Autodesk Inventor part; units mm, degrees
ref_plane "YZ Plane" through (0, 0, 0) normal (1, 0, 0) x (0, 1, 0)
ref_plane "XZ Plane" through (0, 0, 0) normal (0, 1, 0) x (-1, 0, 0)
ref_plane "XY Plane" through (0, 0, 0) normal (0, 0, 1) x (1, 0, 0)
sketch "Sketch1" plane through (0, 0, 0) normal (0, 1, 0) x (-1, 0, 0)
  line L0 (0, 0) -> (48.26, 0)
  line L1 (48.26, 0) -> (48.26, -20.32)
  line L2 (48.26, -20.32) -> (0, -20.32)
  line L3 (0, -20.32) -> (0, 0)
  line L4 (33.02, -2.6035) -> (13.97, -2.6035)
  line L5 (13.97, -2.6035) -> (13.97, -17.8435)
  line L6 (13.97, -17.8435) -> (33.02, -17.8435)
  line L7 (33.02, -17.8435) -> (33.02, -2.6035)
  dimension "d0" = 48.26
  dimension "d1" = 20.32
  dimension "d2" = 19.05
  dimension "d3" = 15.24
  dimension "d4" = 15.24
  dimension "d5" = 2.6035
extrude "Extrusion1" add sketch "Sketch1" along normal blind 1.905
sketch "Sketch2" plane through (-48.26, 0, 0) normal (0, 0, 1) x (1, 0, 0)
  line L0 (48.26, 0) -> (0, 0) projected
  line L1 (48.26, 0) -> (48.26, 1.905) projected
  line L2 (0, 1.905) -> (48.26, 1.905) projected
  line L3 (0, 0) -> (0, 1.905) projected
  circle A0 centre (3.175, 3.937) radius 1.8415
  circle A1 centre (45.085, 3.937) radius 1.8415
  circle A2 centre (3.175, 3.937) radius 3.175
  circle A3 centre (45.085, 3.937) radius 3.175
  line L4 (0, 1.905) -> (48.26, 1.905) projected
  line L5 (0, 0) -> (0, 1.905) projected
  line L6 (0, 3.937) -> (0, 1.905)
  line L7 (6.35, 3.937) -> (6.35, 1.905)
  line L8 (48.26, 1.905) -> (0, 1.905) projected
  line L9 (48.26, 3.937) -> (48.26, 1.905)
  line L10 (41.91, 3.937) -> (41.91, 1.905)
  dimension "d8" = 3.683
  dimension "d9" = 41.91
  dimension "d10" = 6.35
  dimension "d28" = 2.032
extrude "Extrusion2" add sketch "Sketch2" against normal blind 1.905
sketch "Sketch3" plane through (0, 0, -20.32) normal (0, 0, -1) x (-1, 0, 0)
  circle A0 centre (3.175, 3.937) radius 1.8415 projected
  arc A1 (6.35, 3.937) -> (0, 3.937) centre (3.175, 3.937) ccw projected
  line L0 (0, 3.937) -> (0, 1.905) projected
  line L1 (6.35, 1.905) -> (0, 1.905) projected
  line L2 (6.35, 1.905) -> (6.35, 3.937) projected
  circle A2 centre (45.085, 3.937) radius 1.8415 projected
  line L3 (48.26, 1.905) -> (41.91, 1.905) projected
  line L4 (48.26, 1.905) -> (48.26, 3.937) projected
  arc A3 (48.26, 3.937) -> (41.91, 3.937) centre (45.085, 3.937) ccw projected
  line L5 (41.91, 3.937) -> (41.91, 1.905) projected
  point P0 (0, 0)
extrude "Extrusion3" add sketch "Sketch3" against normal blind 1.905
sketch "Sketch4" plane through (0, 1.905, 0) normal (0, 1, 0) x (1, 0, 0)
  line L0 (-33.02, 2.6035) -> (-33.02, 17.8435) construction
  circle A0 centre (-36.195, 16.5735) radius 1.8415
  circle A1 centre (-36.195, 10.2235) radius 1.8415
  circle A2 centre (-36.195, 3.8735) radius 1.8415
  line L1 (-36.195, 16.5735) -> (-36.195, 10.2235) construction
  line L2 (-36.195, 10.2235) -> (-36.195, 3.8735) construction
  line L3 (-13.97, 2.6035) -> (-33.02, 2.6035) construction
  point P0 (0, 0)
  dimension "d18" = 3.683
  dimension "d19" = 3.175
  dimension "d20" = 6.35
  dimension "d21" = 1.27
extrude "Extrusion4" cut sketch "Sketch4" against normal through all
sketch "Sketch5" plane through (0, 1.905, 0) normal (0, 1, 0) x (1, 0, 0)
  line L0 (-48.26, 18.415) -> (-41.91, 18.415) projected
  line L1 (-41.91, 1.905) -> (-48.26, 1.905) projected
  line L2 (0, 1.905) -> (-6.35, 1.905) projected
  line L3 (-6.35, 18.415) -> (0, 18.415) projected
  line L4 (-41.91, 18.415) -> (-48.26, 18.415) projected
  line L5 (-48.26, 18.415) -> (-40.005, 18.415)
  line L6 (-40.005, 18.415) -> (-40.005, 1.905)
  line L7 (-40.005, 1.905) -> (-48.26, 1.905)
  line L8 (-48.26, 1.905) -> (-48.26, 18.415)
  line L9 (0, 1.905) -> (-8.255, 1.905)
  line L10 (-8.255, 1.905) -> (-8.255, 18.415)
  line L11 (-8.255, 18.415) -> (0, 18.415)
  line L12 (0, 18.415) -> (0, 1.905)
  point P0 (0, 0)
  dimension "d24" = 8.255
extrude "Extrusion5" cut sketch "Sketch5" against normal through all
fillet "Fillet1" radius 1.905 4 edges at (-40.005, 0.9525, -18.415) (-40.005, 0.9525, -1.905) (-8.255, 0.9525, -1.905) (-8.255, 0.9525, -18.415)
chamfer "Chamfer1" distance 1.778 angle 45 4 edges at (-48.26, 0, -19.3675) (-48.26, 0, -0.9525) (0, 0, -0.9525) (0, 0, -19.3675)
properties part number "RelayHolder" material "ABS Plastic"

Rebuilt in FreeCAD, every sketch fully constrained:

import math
import FreeCAD as App
import Part
import Sketcher

V = App.Vector
Q = App.Units.Quantity


def edges_at(feature, points):
    """Names of the edges that pass closest to the given points."""
    edges = feature.Shape.Edges
    near = lambda p: min(range(len(edges)), key=lambda i: edges[i].distToShape(Part.Vertex(*p))[0])
    return sorted({f"Edge{near(p) + 1}" for p in points})

doc = App.newDocument("Part")
body = doc.addObject("PartDesign::Body", "Body")

# Sketch on XZ plane
sketch1 = doc.addObject("Sketcher::SketchObject", "Sketch")
body.addObject(sketch1)
sketch1.AttachmentSupport = (doc.XZ_Plane, [""])
sketch1.MapMode = "FlatFace"
sketch1.addGeometry(Part.LineSegment(V(-48, 0, 0), V(0, 0, 0)), False)
sketch1.addGeometry(Part.LineSegment(V(0, 0, 0), V(0, -20, 0)), False)
sketch1.addGeometry(Part.LineSegment(V(0, -20, 0), V(-48, -20, 0)), False)
sketch1.addGeometry(Part.LineSegment(V(-48, -20, 0), V(-48, 0, 0)), False)
sketch1.addGeometry(Part.LineSegment(V(-14, -3, 0), V(-33, -3, 0)), False)
sketch1.addGeometry(Part.LineSegment(V(-33, -3, 0), V(-33, -18, 0)), False)
sketch1.addGeometry(Part.LineSegment(V(-33, -18, 0), V(-14, -18, 0)), False)
sketch1.addGeometry(Part.LineSegment(V(-14, -18, 0), V(-14, -3, 0)), False)
sketch1.addConstraint(Sketcher.Constraint("Coincident", 0, 2, 1, 1))
sketch1.addConstraint(Sketcher.Constraint("Coincident", 1, 2, 2, 1))
sketch1.addConstraint(Sketcher.Constraint("Coincident", 2, 2, 3, 1))
sketch1.addConstraint(Sketcher.Constraint("Coincident", 3, 2, 0, 1))
sketch1.addConstraint(Sketcher.Constraint("Coincident", 4, 2, 5, 1))
sketch1.addConstraint(Sketcher.Constraint("Coincident", 5, 2, 6, 1))
sketch1.addConstraint(Sketcher.Constraint("Coincident", 6, 2, 7, 1))
sketch1.addConstraint(Sketcher.Constraint("Coincident", 7, 2, 4, 1))
sketch1.addConstraint(Sketcher.Constraint("Horizontal", 0))
sketch1.addConstraint(Sketcher.Constraint("Vertical", 1))
sketch1.addConstraint(Sketcher.Constraint("Horizontal", 2))
sketch1.addConstraint(Sketcher.Constraint("Vertical", 3))
sketch1.addConstraint(Sketcher.Constraint("Horizontal", 4))
sketch1.addConstraint(Sketcher.Constraint("Vertical", 5))
sketch1.addConstraint(Sketcher.Constraint("Horizontal", 6))
sketch1.addConstraint(Sketcher.Constraint("Vertical", 7))
sketch1.addConstraint(Sketcher.Constraint("Coincident", 0, 2, -1, 1))
sketch1.addConstraint(Sketcher.Constraint("DistanceX", 0, 1, 0, 2, Q("1.9 in")))
sketch1.addConstraint(Sketcher.Constraint("DistanceY", 1, 2, 1, 1, Q("0.8 in")))
sketch1.addConstraint(Sketcher.Constraint("DistanceY", 5, 2, 5, 1, Q("0.6 in")))
sketch1.addConstraint(Sketcher.Constraint("DistanceX", 4, 2, 4, 1, Q("0.75 in")))
sketch1.addConstraint(Sketcher.Constraint("DistanceX", 3, 2, 4, 2, Q("0.6 in")))
sketch1.addConstraint(Sketcher.Constraint("DistanceY", 4, 2, -1, 1, Q("0.1025 in")))
pad1 = doc.addObject("PartDesign::Pad", "Pad")
body.addObject(pad1)
pad1.Profile = sketch1
pad1.Length = Q("0.075 in")
pad1.Reversed = True

# Sketch on XY plane
sketch2 = doc.addObject("Sketcher::SketchObject", "Sketch001")
body.addObject(sketch2)
sketch2.AttachmentSupport = (doc.XY_Plane, [""])
sketch2.MapMode = "FlatFace"
sketch2.addGeometry(Part.LineSegment(V(-48.3, 0, 0), V(0, 0, 0)), False)
sketch2.addGeometry(Part.LineSegment(V(0, 0, 0), V(0, 3.9, 0)), False)
sketch2.addGeometry(Part.ArcOfCircle(Part.Circle(V(-3.2, 3.9, 0), V(0, 0, 1), 3.2), math.radians(0), math.radians(180)), False)
sketch2.addGeometry(Part.LineSegment(V(-6.3, 3.9, 0), V(-6.3, 1.9, 0)), False)
sketch2.addGeometry(Part.LineSegment(V(-6.3, 1.9, 0), V(-41.9, 1.9, 0)), False)
sketch2.addGeometry(Part.LineSegment(V(-41.9, 1.9, 0), V(-41.9, 3.9, 0)), False)
sketch2.addGeometry(Part.ArcOfCircle(Part.Circle(V(-45.1, 3.9, 0), V(0, 0, 1), 3.2), math.radians(0), math.radians(180)), False)
sketch2.addGeometry(Part.LineSegment(V(-48.3, 3.9, 0), V(-48.3, 0, 0)), False)
sketch2.addGeometry(Part.Circle(V(-45.1, 3.9, 0), V(0, 0, 1), 1.8), False)
sketch2.addGeometry(Part.Circle(V(-3.2, 3.9, 0), V(0, 0, 1), 1.8), False)
sketch2.addConstraint(Sketcher.Constraint("Coincident", 0, 2, 1, 1))
sketch2.addConstraint(Sketcher.Constraint("Tangent", 1, 2, 2, 1))
sketch2.addConstraint(Sketcher.Constraint("Tangent", 2, 2, 3, 1))
sketch2.addConstraint(Sketcher.Constraint("Coincident", 3, 2, 4, 1))
sketch2.addConstraint(Sketcher.Constraint("Coincident", 4, 2, 5, 1))
sketch2.addConstraint(Sketcher.Constraint("Tangent", 5, 2, 6, 1))
sketch2.addConstraint(Sketcher.Constraint("Tangent", 6, 2, 7, 1))
sketch2.addConstraint(Sketcher.Constraint("Coincident", 7, 2, 0, 1))
sketch2.addConstraint(Sketcher.Constraint("Horizontal", 0))
sketch2.addConstraint(Sketcher.Constraint("Vertical", 1))
sketch2.addConstraint(Sketcher.Constraint("Vertical", 3))
sketch2.addConstraint(Sketcher.Constraint("Horizontal", 4))
sketch2.addConstraint(Sketcher.Constraint("Vertical", 5))
sketch2.addConstraint(Sketcher.Constraint("Vertical", 7))
sketch2.addConstraint(Sketcher.Constraint("Coincident", 0, 2, -1, 1))
sketch2.addConstraint(Sketcher.Constraint("Coincident", 8, 3, 6, 3))
sketch2.addConstraint(Sketcher.Constraint("Coincident", 9, 3, 2, 3))
sketch2.addConstraint(Sketcher.Constraint("Equal", 2, 6))
sketch2.addConstraint(Sketcher.Constraint("Equal", 8, 9))
sketch2.addConstraint(Sketcher.Constraint("Horizontal", 2, 3, 6, 3))
sketch2.addConstraint(Sketcher.Constraint("Diameter", 8, Q("0.145 in")))
sketch2.addConstraint(Sketcher.Constraint("Radius", 2, Q("0.125 in")))
sketch2.addConstraint(Sketcher.Constraint("DistanceY", 3, 2, 3, 1, Q("0.08 in")))
sketch2.addConstraint(Sketcher.Constraint("DistanceX", 4, 2, -1, 1, Q("1.65 in")))
sketch2.addConstraint(Sketcher.Constraint("DistanceY", 1, 1, 1, 2, Q("0.155 in")))
pad2 = doc.addObject("PartDesign::Pad", "Pad001")
body.addObject(pad2)
pad2.Profile = sketch2
pad2.Length = Q("0.075 in")
pad2.Reversed = True

# Sketch on XY plane
sketch3 = doc.addObject("Sketcher::SketchObject", "Sketch002")
body.addObject(sketch3)
sketch3.AttachmentSupport = (doc.XY_Plane, [""])
sketch3.MapMode = "FlatFace"
sketch3.AttachmentOffset = App.Placement(V(0, 0, -0.8 * 25.4), App.Rotation())
sketch3.addGeometry(Part.LineSegment(V(-6.3, 1.9, 0), V(-6.3, 3.9, 0)), False)
sketch3.addGeometry(Part.ArcOfCircle(Part.Circle(V(-3.2, 3.9, 0), V(0, 0, 1), 3.2), math.radians(0), math.radians(180)), False)
sketch3.addGeometry(Part.LineSegment(V(0, 3.9, 0), V(0, 1.9, 0)), False)
sketch3.addGeometry(Part.LineSegment(V(0, 1.9, 0), V(-6.3, 1.9, 0)), False)
sketch3.addGeometry(Part.Circle(V(-3.2, 3.9, 0), V(0, 0, 1), 1.8), False)
sketch3.addGeometry(Part.LineSegment(V(-41.9, 1.9, 0), V(-48.3, 1.9, 0)), False)
sketch3.addGeometry(Part.LineSegment(V(-48.3, 1.9, 0), V(-48.3, 3.9, 0)), False)
sketch3.addGeometry(Part.ArcOfCircle(Part.Circle(V(-45.1, 3.9, 0), V(0, 0, 1), 3.2), math.radians(0), math.radians(180)), False)
sketch3.addGeometry(Part.LineSegment(V(-41.9, 3.9, 0), V(-41.9, 1.9, 0)), False)
sketch3.addGeometry(Part.Circle(V(-45.1, 3.9, 0), V(0, 0, 1), 1.8), False)
sketch3.addConstraint(Sketcher.Constraint("Tangent", 0, 2, 1, 2))
sketch3.addConstraint(Sketcher.Constraint("Tangent", 1, 1, 2, 1))
sketch3.addConstraint(Sketcher.Constraint("Coincident", 2, 2, 3, 1))
sketch3.addConstraint(Sketcher.Constraint("Coincident", 3, 2, 0, 1))
sketch3.addConstraint(Sketcher.Constraint("Coincident", 5, 2, 6, 1))
sketch3.addConstraint(Sketcher.Constraint("Tangent", 6, 2, 7, 2))
sketch3.addConstraint(Sketcher.Constraint("Tangent", 7, 1, 8, 1))
sketch3.addConstraint(Sketcher.Constraint("Coincident", 8, 2, 5, 1))
sketch3.addConstraint(Sketcher.Constraint("Vertical", 0))
sketch3.addConstraint(Sketcher.Constraint("Vertical", 2))
sketch3.addConstraint(Sketcher.Constraint("Horizontal", 3))
sketch3.addConstraint(Sketcher.Constraint("Horizontal", 5))
sketch3.addConstraint(Sketcher.Constraint("Vertical", 6))
sketch3.addConstraint(Sketcher.Constraint("Vertical", 8))
sketch3.addConstraint(Sketcher.Constraint("Coincident", 4, 3, 1, 3))
sketch3.addConstraint(Sketcher.Constraint("Coincident", 9, 3, 7, 3))
sketch3.addConstraint(Sketcher.Constraint("Equal", 1, 7))
sketch3.addConstraint(Sketcher.Constraint("Equal", 4, 9))
sketch3.addConstraint(Sketcher.Constraint("PointOnObject", 1, 1, -2))
sketch3.addConstraint(Sketcher.Constraint("Horizontal", 4, 3, 7, 3))
sketch3.addConstraint(Sketcher.Constraint("Horizontal", 3, 2, 5, 2))
sketch3.addConstraint(Sketcher.Constraint("Diameter", 4, Q("0.145 in")))
sketch3.addConstraint(Sketcher.Constraint("Radius", 1, Q("0.125 in")))
sketch3.addConstraint(Sketcher.Constraint("DistanceY", 0, 1, 0, 2, Q("0.08 in")))
sketch3.addConstraint(Sketcher.Constraint("DistanceX", 5, 2, -1, 1, Q("1.9 in")))
sketch3.addConstraint(Sketcher.Constraint("DistanceY", -1, 1, 1, 3, Q("0.155 in")))
pad3 = doc.addObject("PartDesign::Pad", "Pad002")
body.addObject(pad3)
pad3.Profile = sketch3
pad3.Length = Q("0.075 in")

# Sketch on XZ plane
sketch4 = doc.addObject("Sketcher::SketchObject", "Sketch003")
body.addObject(sketch4)
sketch4.AttachmentSupport = (doc.XZ_Plane, [""])
sketch4.MapMode = "FlatFace"
sketch4.AttachmentOffset = App.Placement(V(0, 0, -0.075 * 25.4), App.Rotation())
sketch4.addGeometry(Part.Circle(V(-36.2, -16.6, 0), V(0, 0, 1), 1.8), False)
sketch4.addGeometry(Part.Circle(V(-36.2, -10.2, 0), V(0, 0, 1), 1.8), False)
sketch4.addGeometry(Part.Circle(V(-36.2, -3.9, 0), V(0, 0, 1), 1.8), False)
sketch4.addConstraint(Sketcher.Constraint("Equal", 0, 1))
sketch4.addConstraint(Sketcher.Constraint("Equal", 1, 2))
sketch4.addConstraint(Sketcher.Constraint("Vertical", 0, 3, 1, 3))
sketch4.addConstraint(Sketcher.Constraint("Vertical", 1, 3, 2, 3))
sketch4.addConstraint(Sketcher.Constraint("Diameter", 0, Q("0.145 in")))
sketch4.addConstraint(Sketcher.Constraint("DistanceY", 0, 3, 1, 3, Q("0.25 in")))
sketch4.addConstraint(Sketcher.Constraint("DistanceY", 1, 3, 2, 3, Q("0.25 in")))
sketch4.addConstraint(Sketcher.Constraint("DistanceX", 0, 3, -1, 1, Q("1.425 in")))
sketch4.addConstraint(Sketcher.Constraint("DistanceY", 0, 3, -1, 1, Q("0.6525 in")))
pocket1 = doc.addObject("PartDesign::Pocket", "Pocket")
body.addObject(pocket1)
pocket1.Profile = sketch4
pocket1.Type = "ThroughAll"
pocket1.Reversed = True

# Sketch on XZ plane
sketch5 = doc.addObject("Sketcher::SketchObject", "Sketch004")
body.addObject(sketch5)
sketch5.AttachmentSupport = (doc.XZ_Plane, [""])
sketch5.MapMode = "FlatFace"
sketch5.AttachmentOffset = App.Placement(V(0, 0, -0.075 * 25.4), App.Rotation())
sketch5.addGeometry(Part.LineSegment(V(-40, -18, 0), V(-48, -18, 0)), False)
sketch5.addGeometry(Part.LineSegment(V(-48, -18, 0), V(-48, -2, 0)), False)
sketch5.addGeometry(Part.LineSegment(V(-48, -2, 0), V(-40, -2, 0)), False)
sketch5.addGeometry(Part.LineSegment(V(-40, -2, 0), V(-40, -18, 0)), False)
sketch5.addGeometry(Part.LineSegment(V(-8, -2, 0), V(0, -2, 0)), False)
sketch5.addGeometry(Part.LineSegment(V(0, -2, 0), V(0, -18, 0)), False)
sketch5.addGeometry(Part.LineSegment(V(0, -18, 0), V(-8, -18, 0)), False)
sketch5.addGeometry(Part.LineSegment(V(-8, -18, 0), V(-8, -2, 0)), False)
sketch5.addConstraint(Sketcher.Constraint("Coincident", 0, 2, 1, 1))
sketch5.addConstraint(Sketcher.Constraint("Coincident", 1, 2, 2, 1))
sketch5.addConstraint(Sketcher.Constraint("Coincident", 2, 2, 3, 1))
sketch5.addConstraint(Sketcher.Constraint("Coincident", 3, 2, 0, 1))
sketch5.addConstraint(Sketcher.Constraint("Coincident", 4, 2, 5, 1))
sketch5.addConstraint(Sketcher.Constraint("Coincident", 5, 2, 6, 1))
sketch5.addConstraint(Sketcher.Constraint("Coincident", 6, 2, 7, 1))
sketch5.addConstraint(Sketcher.Constraint("Coincident", 7, 2, 4, 1))
sketch5.addConstraint(Sketcher.Constraint("Horizontal", 0))
sketch5.addConstraint(Sketcher.Constraint("Vertical", 1))
sketch5.addConstraint(Sketcher.Constraint("Horizontal", 2))
sketch5.addConstraint(Sketcher.Constraint("Vertical", 3))
sketch5.addConstraint(Sketcher.Constraint("Horizontal", 4))
sketch5.addConstraint(Sketcher.Constraint("Vertical", 5))
sketch5.addConstraint(Sketcher.Constraint("Horizontal", 6))
sketch5.addConstraint(Sketcher.Constraint("Vertical", 7))
sketch5.addConstraint(Sketcher.Constraint("PointOnObject", 4, 2, -2))
sketch5.addConstraint(Sketcher.Constraint("Horizontal", 2, 2, 4, 2))
sketch5.addConstraint(Sketcher.Constraint("Horizontal", 3, 2, 5, 2))
sketch5.addConstraint(Sketcher.Constraint("Equal", 2, 4))
sketch5.addConstraint(Sketcher.Constraint("DistanceX", 0, 2, 0, 1, Q("0.325 in")))
sketch5.addConstraint(Sketcher.Constraint("DistanceY", 1, 1, 1, 2, Q("0.65 in")))
sketch5.addConstraint(Sketcher.Constraint("DistanceX", 0, 2, -1, 1, Q("1.9 in")))
sketch5.addConstraint(Sketcher.Constraint("DistanceY", 0, 2, -1, 1, Q("0.725 in")))
pocket2 = doc.addObject("PartDesign::Pocket", "Pocket001")
body.addObject(pocket2)
pocket2.Profile = sketch5
pocket2.Type = "ThroughAll"
pocket2.Reversed = True
doc.recompute()

fillet = doc.addObject("PartDesign::Fillet", "Fillet")
body.addObject(fillet)
fillet.Base = (pocket2, edges_at(pocket2, [
    (-40.005, 0.953, -18.415),
    (-40.005, 0.953, -1.905),
    (-8.255, 0.953, -1.905),
    (-8.255, 0.953, -18.415),
]))
fillet.Radius = Q("0.075 in")
doc.recompute()

chamfer = doc.addObject("PartDesign::Chamfer", "Chamfer")
body.addObject(chamfer)
chamfer.Base = (fillet, edges_at(fillet, [
    (-48.26, 0, -19.367),
    (-48.26, 0, -0.953),
    (0, 0, -0.953),
    (0, 0, -19.367),
]))
chamfer.Size = Q("0.07 in")

doc.recompute()
